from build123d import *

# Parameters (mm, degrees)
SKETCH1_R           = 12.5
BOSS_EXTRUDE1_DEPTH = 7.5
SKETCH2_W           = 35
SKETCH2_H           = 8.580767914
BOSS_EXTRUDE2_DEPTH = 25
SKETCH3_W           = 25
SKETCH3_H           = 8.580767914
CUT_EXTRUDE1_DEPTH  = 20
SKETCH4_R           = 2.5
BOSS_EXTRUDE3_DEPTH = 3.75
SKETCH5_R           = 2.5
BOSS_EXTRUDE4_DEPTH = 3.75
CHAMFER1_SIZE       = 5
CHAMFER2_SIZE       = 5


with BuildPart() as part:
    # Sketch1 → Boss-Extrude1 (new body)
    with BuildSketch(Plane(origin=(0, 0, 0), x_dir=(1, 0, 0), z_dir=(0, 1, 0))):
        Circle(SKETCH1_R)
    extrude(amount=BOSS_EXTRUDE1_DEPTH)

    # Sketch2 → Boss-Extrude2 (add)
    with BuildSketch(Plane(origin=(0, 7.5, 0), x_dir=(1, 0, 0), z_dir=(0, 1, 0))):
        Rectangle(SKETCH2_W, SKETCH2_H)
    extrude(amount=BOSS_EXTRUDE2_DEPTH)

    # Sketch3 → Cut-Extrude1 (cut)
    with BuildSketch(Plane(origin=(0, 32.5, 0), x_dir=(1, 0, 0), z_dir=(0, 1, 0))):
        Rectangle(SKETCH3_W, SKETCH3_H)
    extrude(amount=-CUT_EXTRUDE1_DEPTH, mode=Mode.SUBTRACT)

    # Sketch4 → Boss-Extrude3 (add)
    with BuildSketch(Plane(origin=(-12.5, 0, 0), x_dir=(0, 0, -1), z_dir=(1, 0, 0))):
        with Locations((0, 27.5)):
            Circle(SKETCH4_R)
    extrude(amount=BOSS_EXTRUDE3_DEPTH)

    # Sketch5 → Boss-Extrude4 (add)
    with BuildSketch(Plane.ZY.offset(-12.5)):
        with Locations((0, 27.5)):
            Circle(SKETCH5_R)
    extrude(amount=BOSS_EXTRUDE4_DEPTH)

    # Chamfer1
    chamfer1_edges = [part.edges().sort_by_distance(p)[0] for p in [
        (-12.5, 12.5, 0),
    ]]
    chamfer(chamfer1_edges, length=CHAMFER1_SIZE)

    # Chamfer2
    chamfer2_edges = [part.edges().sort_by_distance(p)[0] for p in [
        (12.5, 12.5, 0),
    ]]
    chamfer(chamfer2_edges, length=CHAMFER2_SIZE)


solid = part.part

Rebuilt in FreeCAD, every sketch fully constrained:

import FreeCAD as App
import Part
import Sketcher

V = App.Vector


def edges_at(feature, points):
    """Names of the edges that pass closest to the given points."""
    edges = feature.Shape.Edges
    near = lambda p: min(range(len(edges)), key=lambda i: edges[i].distToShape(Part.Vertex(*p))[0])
    return sorted({f"Edge{near(p) + 1}" for p in points})

doc = App.newDocument("Part")
params = doc.addObject("Spreadsheet::Sheet", "Params")
for row, (alias, value) in enumerate([
    ("sketch1_diameter", "25 mm"),
    ("pad1_length", "7.5 mm"),
    ("sketch2_width", "35 mm"),
    ("pad2_length", "25 mm"),
    ("sketch3_width", "25 mm"),
    ("pocket1_length", "20 mm"),
    ("sketch4_diameter", "5 mm"),
    ("pad3_length", "3.75 mm"),
    ("sketch5_diameter", "5 mm"),
    ("pad4_length", "3.75 mm"),
    ("chamfer_size", "5 mm"),
    ("chamfer2_size", "5 mm"),
], start=1):
    params.set(f"A{row}", alias)
    params.set(f"B{row}", "=" + value)
    params.setAlias(f"B{row}", alias)

body = doc.addObject("PartDesign::Body", "Body")

sketch1 = body.newObject("Sketcher::SketchObject", "Sketch")
sketch1.AttachmentSupport = (doc.getObject("XZ_Plane"), [""])
sketch1.MapMode = "FlatFace"
sketch1.addGeometry(Part.Circle(V(0, 0, 0), V(0, 0, 1), 12), False)
sketch1.addConstraint(Sketcher.Constraint("Coincident", 0, 3, -1, 1))
sketch1.addConstraint(Sketcher.Constraint("Diameter", 0, 25.0))
sketch1.setExpression("Constraints[1]", "Params.sketch1_diameter")
pad1 = body.newObject("PartDesign::Pad", "Pad")
pad1.Profile = sketch1
pad1.setExpression("Length", "Params.pad1_length")
pad1.Reversed = True

sketch2 = body.newObject("Sketcher::SketchObject", "Sketch001")
sketch2.AttachmentSupport = (doc.getObject("XZ_Plane"), [""])
sketch2.MapMode = "FlatFace"
sketch2.AttachmentOffset = App.Placement(V(0, 0, -7.5), App.Rotation())
sketch2.addGeometry(Part.LineSegment(V(-18, -4, 0), V(-18, 4, 0)), False)
sketch2.addGeometry(Part.LineSegment(V(-18, 4, 0), V(18, 4, 0)), False)
sketch2.addGeometry(Part.LineSegment(V(18, 4, 0), V(18, -4, 0)), False)
sketch2.addGeometry(Part.LineSegment(V(18, -4, 0), V(-18, -4, 0)), False)
sketch2.addConstraint(Sketcher.Constraint("Coincident", 0, 2, 1, 1))
sketch2.addConstraint(Sketcher.Constraint("Coincident", 1, 2, 2, 1))
sketch2.addConstraint(Sketcher.Constraint("Coincident", 2, 2, 3, 1))
sketch2.addConstraint(Sketcher.Constraint("Coincident", 3, 2, 0, 1))
sketch2.addConstraint(Sketcher.Constraint("Vertical", 0))
sketch2.addConstraint(Sketcher.Constraint("Horizontal", 1))
sketch2.addConstraint(Sketcher.Constraint("Vertical", 2))
sketch2.addConstraint(Sketcher.Constraint("Horizontal", 3))
sketch2.addConstraint(Sketcher.Constraint("Symmetric", 0, 2, 2, 2, -1, 1))
sketch2.addConstraint(Sketcher.Constraint("DistanceX", 1, 1, 1, 2, 35.0))
sketch2.addConstraint(Sketcher.Constraint("DistanceY", 0, 1, 0, 2, 8.580768))
sketch2.setExpression("Constraints[9]", "Params.sketch2_width")
pad2 = body.newObject("PartDesign::Pad", "Pad001")
pad2.Profile = sketch2
pad2.setExpression("Length", "Params.pad2_length")
pad2.Reversed = True

sketch3 = body.newObject("Sketcher::SketchObject", "Sketch002")
sketch3.AttachmentSupport = (doc.getObject("XZ_Plane"), [""])
sketch3.MapMode = "FlatFace"
sketch3.AttachmentOffset = App.Placement(V(0, 0, -32.5), App.Rotation())
sketch3.addGeometry(Part.LineSegment(V(-12, -4, 0), V(-12, 4, 0)), False)
sketch3.addGeometry(Part.LineSegment(V(-12, 4, 0), V(12, 4, 0)), False)
sketch3.addGeometry(Part.LineSegment(V(12, 4, 0), V(12, -4, 0)), False)
sketch3.addGeometry(Part.LineSegment(V(12, -4, 0), V(-12, -4, 0)), False)
sketch3.addConstraint(Sketcher.Constraint("Coincident", 0, 2, 1, 1))
sketch3.addConstraint(Sketcher.Constraint("Coincident", 1, 2, 2, 1))
sketch3.addConstraint(Sketcher.Constraint("Coincident", 2, 2, 3, 1))
sketch3.addConstraint(Sketcher.Constraint("Coincident", 3, 2, 0, 1))
sketch3.addConstraint(Sketcher.Constraint("Vertical", 0))
sketch3.addConstraint(Sketcher.Constraint("Horizontal", 1))
sketch3.addConstraint(Sketcher.Constraint("Vertical", 2))
sketch3.addConstraint(Sketcher.Constraint("Horizontal", 3))
sketch3.addConstraint(Sketcher.Constraint("Symmetric", 0, 2, 2, 2, -1, 1))
sketch3.addConstraint(Sketcher.Constraint("DistanceX", 1, 1, 1, 2, 25.0))
sketch3.addConstraint(Sketcher.Constraint("DistanceY", 0, 1, 0, 2, 8.580768))
sketch3.setExpression("Constraints[9]", "Params.sketch3_width")
pocket1 = body.newObject("PartDesign::Pocket", "Pocket")
pocket1.Profile = sketch3
pocket1.setExpression("Length", "Params.pocket1_length")
pocket1.Reversed = True

sketch4 = body.newObject("Sketcher::SketchObject", "Sketch003")
sketch4.AttachmentSupport = (doc.getObject("YZ_Plane"), [""])
sketch4.MapMode = "FlatFace"
sketch4.AttachmentOffset = App.Placement(V(0, 0, -12.5), App.Rotation())
sketch4.addGeometry(Part.Circle(V(27.5, 0, 0), V(0, 0, 1), 2.5), False)
sketch4.addConstraint(Sketcher.Constraint("PointOnObject", 0, 3, -1))
sketch4.addConstraint(Sketcher.Constraint("Diameter", 0, 5.0))
sketch4.addConstraint(Sketcher.Constraint("DistanceX", -1, 1, 0, 3, 27.5))
sketch4.setExpression("Constraints[1]", "Params.sketch4_diameter")
pad3 = body.newObject("PartDesign::Pad", "Pad002")
pad3.Profile = sketch4
pad3.setExpression("Length", "Params.pad3_length")

sketch5 = body.newObject("Sketcher::SketchObject", "Sketch004")
sketch5.AttachmentSupport = (doc.getObject("YZ_Plane"), [""])
sketch5.MapMode = "FlatFace"
sketch5.AttachmentOffset = App.Placement(V(0, 0, 12.5), App.Rotation())
sketch5.addGeometry(Part.Circle(V(27.5, 0, 0), V(0, 0, 1), 2.5), False)
sketch5.addConstraint(Sketcher.Constraint("PointOnObject", 0, 3, -1))
sketch5.addConstraint(Sketcher.Constraint("Diameter", 0, 5.0))
sketch5.addConstraint(Sketcher.Constraint("DistanceX", -1, 1, 0, 3, 27.5))
sketch5.setExpression("Constraints[1]", "Params.sketch5_diameter")
pad4 = body.newObject("PartDesign::Pad", "Pad003")
pad4.Profile = sketch5
pad4.setExpression("Length", "Params.pad4_length")
pad4.Reversed = True
doc.recompute()

chamfer = body.newObject("PartDesign::Chamfer", "Chamfer")
chamfer.Base = (pad4, edges_at(pad4, [(-12.5, 12.5, 0)]))
chamfer.setExpression("Size", "Params.chamfer_size")
doc.recompute()

chamfer2 = body.newObject("PartDesign::Chamfer", "Chamfer001")
chamfer2.Base = (chamfer, edges_at(chamfer, [(12.5, 12.5, 0)]))
chamfer2.setExpression("Size", "Params.chamfer2_size")

doc.recompute()
